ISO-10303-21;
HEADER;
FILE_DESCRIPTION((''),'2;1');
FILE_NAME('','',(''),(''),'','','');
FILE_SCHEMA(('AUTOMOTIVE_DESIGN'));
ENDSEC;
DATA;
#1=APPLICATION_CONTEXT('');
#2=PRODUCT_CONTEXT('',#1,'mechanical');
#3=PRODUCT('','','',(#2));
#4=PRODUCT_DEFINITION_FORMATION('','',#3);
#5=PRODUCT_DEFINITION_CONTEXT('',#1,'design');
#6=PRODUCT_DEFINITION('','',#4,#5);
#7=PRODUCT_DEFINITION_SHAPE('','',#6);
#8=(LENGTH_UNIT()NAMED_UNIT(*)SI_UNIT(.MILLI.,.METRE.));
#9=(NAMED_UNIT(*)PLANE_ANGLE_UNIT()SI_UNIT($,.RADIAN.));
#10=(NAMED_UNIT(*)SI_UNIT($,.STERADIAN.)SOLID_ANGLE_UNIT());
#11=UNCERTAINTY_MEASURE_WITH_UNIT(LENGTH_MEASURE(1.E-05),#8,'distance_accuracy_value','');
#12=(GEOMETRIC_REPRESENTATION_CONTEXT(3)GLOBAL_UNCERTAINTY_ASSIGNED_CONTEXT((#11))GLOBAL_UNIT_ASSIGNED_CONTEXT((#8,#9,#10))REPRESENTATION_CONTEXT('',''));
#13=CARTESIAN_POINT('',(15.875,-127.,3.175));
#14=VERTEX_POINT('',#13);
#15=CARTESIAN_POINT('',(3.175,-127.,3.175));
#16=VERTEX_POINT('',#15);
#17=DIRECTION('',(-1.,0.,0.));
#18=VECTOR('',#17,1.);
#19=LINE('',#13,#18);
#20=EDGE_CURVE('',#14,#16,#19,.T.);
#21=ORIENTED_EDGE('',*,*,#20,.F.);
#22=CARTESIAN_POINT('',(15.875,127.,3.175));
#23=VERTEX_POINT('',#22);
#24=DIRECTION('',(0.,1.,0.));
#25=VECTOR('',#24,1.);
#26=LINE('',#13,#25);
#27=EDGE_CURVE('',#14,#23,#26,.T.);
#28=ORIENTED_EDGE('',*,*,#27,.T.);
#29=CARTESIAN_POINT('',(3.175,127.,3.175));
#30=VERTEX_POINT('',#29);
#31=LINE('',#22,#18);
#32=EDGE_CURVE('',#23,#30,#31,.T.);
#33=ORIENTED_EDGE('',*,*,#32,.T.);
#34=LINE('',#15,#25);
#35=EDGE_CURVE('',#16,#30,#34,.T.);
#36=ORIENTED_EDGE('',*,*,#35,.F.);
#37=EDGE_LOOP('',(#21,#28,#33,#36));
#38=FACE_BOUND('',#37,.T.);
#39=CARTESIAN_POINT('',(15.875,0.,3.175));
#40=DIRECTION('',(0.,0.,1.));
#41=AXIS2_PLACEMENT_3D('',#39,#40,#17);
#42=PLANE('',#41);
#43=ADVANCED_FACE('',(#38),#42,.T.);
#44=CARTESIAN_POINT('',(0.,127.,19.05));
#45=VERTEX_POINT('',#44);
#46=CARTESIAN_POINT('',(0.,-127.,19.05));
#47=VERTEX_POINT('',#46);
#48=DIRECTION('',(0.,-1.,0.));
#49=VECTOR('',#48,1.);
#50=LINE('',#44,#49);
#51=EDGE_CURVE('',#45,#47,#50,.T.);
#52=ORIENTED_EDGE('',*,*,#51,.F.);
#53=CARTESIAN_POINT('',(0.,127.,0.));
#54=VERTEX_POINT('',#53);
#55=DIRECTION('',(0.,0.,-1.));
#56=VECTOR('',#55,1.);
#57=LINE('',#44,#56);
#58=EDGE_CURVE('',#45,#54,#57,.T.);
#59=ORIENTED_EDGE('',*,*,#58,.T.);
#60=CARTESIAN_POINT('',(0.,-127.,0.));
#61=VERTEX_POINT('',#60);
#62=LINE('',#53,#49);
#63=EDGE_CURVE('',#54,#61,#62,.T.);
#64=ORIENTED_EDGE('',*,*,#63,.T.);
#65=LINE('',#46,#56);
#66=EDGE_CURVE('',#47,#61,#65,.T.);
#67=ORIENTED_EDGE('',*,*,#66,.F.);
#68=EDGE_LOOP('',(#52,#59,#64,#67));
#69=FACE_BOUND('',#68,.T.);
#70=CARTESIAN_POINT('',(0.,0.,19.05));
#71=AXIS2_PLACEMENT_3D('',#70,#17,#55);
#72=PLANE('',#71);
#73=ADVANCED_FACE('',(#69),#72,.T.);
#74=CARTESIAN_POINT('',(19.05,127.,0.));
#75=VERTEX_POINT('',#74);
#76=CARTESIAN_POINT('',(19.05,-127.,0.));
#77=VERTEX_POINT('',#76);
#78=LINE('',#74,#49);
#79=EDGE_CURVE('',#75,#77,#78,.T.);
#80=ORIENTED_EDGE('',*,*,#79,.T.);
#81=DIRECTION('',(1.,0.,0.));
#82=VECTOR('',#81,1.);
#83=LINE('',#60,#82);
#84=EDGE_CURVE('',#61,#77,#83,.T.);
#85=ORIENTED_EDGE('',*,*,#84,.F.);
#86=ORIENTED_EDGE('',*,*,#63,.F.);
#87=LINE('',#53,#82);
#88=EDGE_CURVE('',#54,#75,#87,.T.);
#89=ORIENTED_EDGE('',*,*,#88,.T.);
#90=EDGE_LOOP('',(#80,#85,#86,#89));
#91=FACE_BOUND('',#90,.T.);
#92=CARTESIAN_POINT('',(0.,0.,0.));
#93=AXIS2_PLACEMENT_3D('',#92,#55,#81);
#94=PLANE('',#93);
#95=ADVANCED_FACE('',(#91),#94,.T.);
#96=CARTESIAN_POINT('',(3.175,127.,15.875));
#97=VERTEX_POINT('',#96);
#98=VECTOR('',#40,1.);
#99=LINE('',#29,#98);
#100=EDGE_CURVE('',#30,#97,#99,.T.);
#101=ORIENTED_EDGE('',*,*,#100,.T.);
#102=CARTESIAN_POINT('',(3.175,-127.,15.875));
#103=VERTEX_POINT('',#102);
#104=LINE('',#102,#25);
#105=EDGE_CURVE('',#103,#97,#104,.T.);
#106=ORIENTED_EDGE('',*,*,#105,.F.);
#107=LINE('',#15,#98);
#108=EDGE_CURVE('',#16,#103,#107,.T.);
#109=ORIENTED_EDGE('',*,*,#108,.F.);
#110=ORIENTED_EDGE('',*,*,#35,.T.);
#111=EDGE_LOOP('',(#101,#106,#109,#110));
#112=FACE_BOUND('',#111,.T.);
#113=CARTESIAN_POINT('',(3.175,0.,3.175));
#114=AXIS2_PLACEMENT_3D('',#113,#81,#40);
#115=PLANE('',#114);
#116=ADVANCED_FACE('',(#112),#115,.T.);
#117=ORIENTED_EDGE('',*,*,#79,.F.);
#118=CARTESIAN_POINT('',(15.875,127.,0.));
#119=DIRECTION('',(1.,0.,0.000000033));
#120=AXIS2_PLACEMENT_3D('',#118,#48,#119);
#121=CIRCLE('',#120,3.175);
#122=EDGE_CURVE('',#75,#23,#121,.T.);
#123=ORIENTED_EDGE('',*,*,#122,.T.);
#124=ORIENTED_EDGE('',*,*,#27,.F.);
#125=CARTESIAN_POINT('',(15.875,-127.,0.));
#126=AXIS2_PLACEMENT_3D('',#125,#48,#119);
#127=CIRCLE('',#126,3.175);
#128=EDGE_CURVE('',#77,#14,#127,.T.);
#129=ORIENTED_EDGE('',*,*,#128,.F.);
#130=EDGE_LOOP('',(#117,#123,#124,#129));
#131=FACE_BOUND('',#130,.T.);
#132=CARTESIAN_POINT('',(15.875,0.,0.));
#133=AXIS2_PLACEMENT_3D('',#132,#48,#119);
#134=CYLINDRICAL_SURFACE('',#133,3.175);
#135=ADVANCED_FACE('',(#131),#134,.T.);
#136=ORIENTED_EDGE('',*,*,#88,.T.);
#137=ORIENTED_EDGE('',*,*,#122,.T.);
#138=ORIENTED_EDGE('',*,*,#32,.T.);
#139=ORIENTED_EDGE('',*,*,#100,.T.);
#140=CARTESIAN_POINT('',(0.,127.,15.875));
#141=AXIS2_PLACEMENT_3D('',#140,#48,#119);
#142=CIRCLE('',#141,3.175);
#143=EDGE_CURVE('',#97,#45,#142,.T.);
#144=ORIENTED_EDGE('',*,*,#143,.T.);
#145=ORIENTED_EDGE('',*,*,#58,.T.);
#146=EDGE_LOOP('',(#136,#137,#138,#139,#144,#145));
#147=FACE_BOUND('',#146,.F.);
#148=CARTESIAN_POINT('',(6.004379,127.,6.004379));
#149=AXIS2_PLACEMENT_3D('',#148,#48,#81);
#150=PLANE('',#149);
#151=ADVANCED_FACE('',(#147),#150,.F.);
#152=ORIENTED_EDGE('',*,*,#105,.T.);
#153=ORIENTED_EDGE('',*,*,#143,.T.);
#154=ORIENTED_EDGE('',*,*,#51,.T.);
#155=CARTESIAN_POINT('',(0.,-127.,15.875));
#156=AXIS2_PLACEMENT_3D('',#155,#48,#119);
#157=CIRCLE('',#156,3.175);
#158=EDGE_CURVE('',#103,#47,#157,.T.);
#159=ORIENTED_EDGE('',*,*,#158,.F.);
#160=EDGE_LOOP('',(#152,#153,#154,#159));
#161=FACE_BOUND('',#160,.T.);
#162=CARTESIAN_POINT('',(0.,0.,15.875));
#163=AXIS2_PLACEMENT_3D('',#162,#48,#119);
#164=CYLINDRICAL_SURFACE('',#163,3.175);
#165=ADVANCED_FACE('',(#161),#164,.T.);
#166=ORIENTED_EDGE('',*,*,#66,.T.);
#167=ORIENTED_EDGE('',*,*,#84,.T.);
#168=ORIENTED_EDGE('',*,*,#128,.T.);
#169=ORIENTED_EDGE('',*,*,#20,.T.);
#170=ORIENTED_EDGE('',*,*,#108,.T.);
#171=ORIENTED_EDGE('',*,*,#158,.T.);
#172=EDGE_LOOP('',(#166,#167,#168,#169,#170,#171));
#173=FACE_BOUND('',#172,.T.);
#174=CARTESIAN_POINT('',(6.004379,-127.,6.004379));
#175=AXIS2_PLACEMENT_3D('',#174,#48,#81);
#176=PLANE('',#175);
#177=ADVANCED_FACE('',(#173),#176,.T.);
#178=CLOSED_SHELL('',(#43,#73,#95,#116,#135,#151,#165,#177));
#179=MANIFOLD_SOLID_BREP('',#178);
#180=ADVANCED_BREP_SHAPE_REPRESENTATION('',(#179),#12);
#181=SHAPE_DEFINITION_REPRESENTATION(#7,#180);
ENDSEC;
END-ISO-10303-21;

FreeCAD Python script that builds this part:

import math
import FreeCAD as App
import Part
import Sketcher
Q = App.Units.Quantity

doc = App.newDocument("Part")
body = doc.addObject("PartDesign::Body", "Body")

# Sketch on XZ plane
sketch1 = body.newObject("Sketcher::SketchObject", "Sketch")
sketch1.AttachmentSupport = (doc.getObject("XZ_Plane"), [""])
sketch1.MapMode = "FlatFace"
sketch1.addGeometry(Part.ArcOfCircle(Part.Circle(App.Vector(0, 15.9, 0), App.Vector(0, 0, 1), 3.2), math.radians(0), math.radians(90)), False)
sketch1.addGeometry(Part.LineSegment(App.Vector(0, 19.1, 0), App.Vector(0, 0, 0)), False)
sketch1.addGeometry(Part.LineSegment(App.Vector(0, 0, 0), App.Vector(19.1, 0, 0)), False)
sketch1.addGeometry(Part.ArcOfCircle(Part.Circle(App.Vector(15.9, 0, 0), App.Vector(0, 0, 1), 3.2), math.radians(0), math.radians(90)), False)
sketch1.addGeometry(Part.LineSegment(App.Vector(15.9, 3.2, 0), App.Vector(3.2, 3.2, 0)), False)
sketch1.addGeometry(Part.LineSegment(App.Vector(3.2, 3.2, 0), App.Vector(3.2, 15.9, 0)), False)
sketch1.addConstraint(Sketcher.Constraint("Coincident", 0, 2, 1, 1))
sketch1.addConstraint(Sketcher.Constraint("Coincident", 1, 2, 2, 1))
sketch1.addConstraint(Sketcher.Constraint("Coincident", 2, 2, 3, 1))
sketch1.addConstraint(Sketcher.Constraint("Tangent", 3, 2, 4, 1))
sketch1.addConstraint(Sketcher.Constraint("Coincident", 4, 2, 5, 1))
sketch1.addConstraint(Sketcher.Constraint("Tangent", 5, 2, 0, 1))
sketch1.addConstraint(Sketcher.Constraint("Vertical", 1))
sketch1.addConstraint(Sketcher.Constraint("Horizontal", 2))
sketch1.addConstraint(Sketcher.Constraint("Horizontal", 4))
sketch1.addConstraint(Sketcher.Constraint("Vertical", 5))
sketch1.addConstraint(Sketcher.Constraint("Coincident", 1, 2, -1, 1))
sketch1.addConstraint(Sketcher.Constraint("Equal", 0, 3))
sketch1.addConstraint(Sketcher.Constraint("PointOnObject", 0, 3, -2))
sketch1.addConstraint(Sketcher.Constraint("PointOnObject", 3, 3, -1))
sketch1.addConstraint(Sketcher.Constraint("Equal", 2, 1))
sketch1.addConstraint(Sketcher.Constraint("DistanceX", 4, 2, 4, 1, Q("0.5 in")))
sketch1.addConstraint(Sketcher.Constraint("Radius", 0, Q("0.125 in")))
pad1 = body.newObject("PartDesign::Pad", "Pad")
pad1.Profile = sketch1
pad1.Length = Q("10 in")
pad1.Midplane = True

doc.recompute()
